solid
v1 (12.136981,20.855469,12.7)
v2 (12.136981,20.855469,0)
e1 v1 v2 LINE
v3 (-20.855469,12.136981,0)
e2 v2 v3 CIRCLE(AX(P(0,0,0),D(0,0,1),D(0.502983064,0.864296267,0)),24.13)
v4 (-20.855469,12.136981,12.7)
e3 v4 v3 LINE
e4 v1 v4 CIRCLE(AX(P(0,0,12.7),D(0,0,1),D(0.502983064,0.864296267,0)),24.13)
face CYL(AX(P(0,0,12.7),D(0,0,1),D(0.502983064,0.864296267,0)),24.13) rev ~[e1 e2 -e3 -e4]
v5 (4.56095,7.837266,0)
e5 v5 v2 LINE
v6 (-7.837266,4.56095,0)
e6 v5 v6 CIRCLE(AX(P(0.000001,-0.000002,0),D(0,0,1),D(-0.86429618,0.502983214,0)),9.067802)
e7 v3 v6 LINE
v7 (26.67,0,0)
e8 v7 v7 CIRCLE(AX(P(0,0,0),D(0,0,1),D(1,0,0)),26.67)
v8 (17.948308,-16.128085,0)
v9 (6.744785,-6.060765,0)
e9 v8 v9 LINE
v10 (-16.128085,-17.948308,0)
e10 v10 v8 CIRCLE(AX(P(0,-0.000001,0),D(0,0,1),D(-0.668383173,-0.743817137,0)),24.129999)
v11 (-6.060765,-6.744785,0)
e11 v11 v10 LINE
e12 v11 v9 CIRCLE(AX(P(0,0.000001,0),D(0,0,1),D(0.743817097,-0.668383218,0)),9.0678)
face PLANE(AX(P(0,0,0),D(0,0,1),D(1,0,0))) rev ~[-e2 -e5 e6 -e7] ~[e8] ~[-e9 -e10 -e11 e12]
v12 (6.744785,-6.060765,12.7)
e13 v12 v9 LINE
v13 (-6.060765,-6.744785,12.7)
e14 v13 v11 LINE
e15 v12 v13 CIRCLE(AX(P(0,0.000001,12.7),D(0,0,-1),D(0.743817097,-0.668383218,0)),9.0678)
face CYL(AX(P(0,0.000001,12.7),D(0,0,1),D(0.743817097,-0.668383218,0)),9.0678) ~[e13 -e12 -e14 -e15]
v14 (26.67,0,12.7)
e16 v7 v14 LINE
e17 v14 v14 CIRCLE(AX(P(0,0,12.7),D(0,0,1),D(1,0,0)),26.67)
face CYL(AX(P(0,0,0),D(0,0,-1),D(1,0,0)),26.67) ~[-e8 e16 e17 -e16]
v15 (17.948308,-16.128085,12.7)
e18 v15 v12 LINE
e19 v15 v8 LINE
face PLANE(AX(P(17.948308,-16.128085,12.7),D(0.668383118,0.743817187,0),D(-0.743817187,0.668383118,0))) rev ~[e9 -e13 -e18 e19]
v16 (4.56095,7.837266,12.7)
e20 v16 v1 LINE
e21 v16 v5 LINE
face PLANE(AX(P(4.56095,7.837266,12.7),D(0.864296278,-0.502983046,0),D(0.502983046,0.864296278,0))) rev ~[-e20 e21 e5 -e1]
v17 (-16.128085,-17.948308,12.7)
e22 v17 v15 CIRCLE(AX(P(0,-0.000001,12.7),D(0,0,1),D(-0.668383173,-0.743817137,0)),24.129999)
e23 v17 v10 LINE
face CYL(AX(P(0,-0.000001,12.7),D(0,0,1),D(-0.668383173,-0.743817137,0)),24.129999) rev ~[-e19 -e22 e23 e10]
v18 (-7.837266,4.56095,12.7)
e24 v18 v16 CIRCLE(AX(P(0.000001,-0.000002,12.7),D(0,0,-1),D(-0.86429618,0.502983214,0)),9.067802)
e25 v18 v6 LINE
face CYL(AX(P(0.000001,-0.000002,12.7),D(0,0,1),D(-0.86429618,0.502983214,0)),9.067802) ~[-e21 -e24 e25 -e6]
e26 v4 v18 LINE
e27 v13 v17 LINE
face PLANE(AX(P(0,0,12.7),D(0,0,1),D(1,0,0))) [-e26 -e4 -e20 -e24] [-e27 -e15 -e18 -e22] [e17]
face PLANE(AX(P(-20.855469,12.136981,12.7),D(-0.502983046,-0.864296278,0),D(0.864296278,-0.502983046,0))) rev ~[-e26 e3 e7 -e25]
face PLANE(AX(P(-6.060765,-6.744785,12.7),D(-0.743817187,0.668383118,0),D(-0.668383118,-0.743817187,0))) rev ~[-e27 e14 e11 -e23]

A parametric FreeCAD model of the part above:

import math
import FreeCAD as App
import Part
import Sketcher

V = App.Vector
Q = App.Units.Quantity

doc = App.newDocument("Part")
body = doc.addObject("PartDesign::Body", "Body")

# Sketch on XY plane
sketch1 = body.newObject("Sketcher::SketchObject", "Sketch")
sketch1.AttachmentSupport = (doc.getObject("XY_Plane"), [""])
sketch1.MapMode = "FlatFace"
sketch1.addGeometry(Part.Circle(V(0, 0, 0), V(0, 0, 1), 27), False)
sketch1.addConstraint(Sketcher.Constraint("Coincident", 0, 3, -1, 1))
sketch1.addConstraint(Sketcher.Constraint("Diameter", 0, Q("2.1 in")))
pad1 = body.newObject("PartDesign::Pad", "Pad")
pad1.Profile = sketch1
pad1.Length = Q("0.5 in")

# Sketch on XY plane
sketch2 = body.newObject("Sketcher::SketchObject", "Sketch001")
sketch2.AttachmentSupport = (doc.getObject("XY_Plane"), [""])
sketch2.MapMode = "FlatFace"
sketch2.AttachmentOffset = App.Placement(V(0, 0, 0.5 * 25.4), App.Rotation())
sketch2.addGeometry(Part.ArcOfCircle(Part.Circle(V(0, 0, 0), V(0, 0, 1), 24), math.radians(-132), math.radians(-42)), False)
sketch2.addGeometry(Part.LineSegment(V(18, -16, 0), V(7, -6, 0)), False)
sketch2.addGeometry(Part.ArcOfCircle(Part.Circle(V(0, 0, 0), V(0, 0, 1), 9), math.radians(-132), math.radians(-42)), False)
sketch2.addGeometry(Part.LineSegment(V(-6, -7, 0), V(-16, -18, 0)), False)
sketch2.addGeometry(Part.LineSegment(V(5, 8, 0), V(12, 21, 0)), False)
sketch2.addGeometry(Part.ArcOfCircle(Part.Circle(V(0, 0, 0), V(0, 0, 1), 24), math.radians(60), math.radians(150)), False)
sketch2.addGeometry(Part.LineSegment(V(-21, 12, 0), V(-8, 5, 0)), False)
sketch2.addGeometry(Part.ArcOfCircle(Part.Circle(V(0, 0, 0), V(0, 0, 1), 9), math.radians(60), math.radians(150)), False)
sketch2.addConstraint(Sketcher.Constraint("Coincident", 0, 2, 1, 1))
sketch2.addConstraint(Sketcher.Constraint("Coincident", 1, 2, 2, 2))
sketch2.addConstraint(Sketcher.Constraint("Coincident", 2, 1, 3, 1))
sketch2.addConstraint(Sketcher.Constraint("Coincident", 3, 2, 0, 1))
sketch2.addConstraint(Sketcher.Constraint("Coincident", 4, 2, 5, 1))
sketch2.addConstraint(Sketcher.Constraint("Coincident", 5, 2, 6, 1))
sketch2.addConstraint(Sketcher.Constraint("Coincident", 6, 2, 7, 2))
sketch2.addConstraint(Sketcher.Constraint("Coincident", 7, 1, 4, 1))
sketch2.addConstraint(Sketcher.Constraint("Coincident", 0, 3, -1, 1))
sketch2.addConstraint(Sketcher.Constraint("Coincident", 2, 3, -1, 1))
sketch2.addConstraint(Sketcher.Constraint("Coincident", 5, 3, -1, 1))
sketch2.addConstraint(Sketcher.Constraint("Coincident", 7, 3, -1, 1))
sketch2.addConstraint(Sketcher.Constraint("Equal", 0, 5))
sketch2.addConstraint(Sketcher.Constraint("Equal", 2, 7))
sketch2.addConstraint(Sketcher.Constraint("Perpendicular", 1, 3))
sketch2.addConstraint(Sketcher.Constraint("Perpendicular", 4, 6))
sketch2.addConstraint(Sketcher.Constraint("Radius", 0, Q("0.9499999 in")))
sketch2.addConstraint(Sketcher.Constraint("Radius", 2, Q("0.357 in")))
sketch2.addConstraint(Sketcher.Constraint("DistanceX", 6, 2, 2, 1, 1.776501))
sketch2.addConstraint(Sketcher.Constraint("DistanceX", -1, 1, 0, 2, 17.948308))
sketch2.addConstraint(Sketcher.Constraint("DistanceY", 3, 2, -1, 1, 17.948308))
sketch2.addConstraint(Sketcher.Constraint("DistanceX", -1, 1, 4, 2, 12.136981))
sketch2.addConstraint(Sketcher.Constraint("DistanceX", 5, 2, -1, 1, 20.855469))
sketch2.addConstraint(Sketcher.Constraint("DistanceY", -1, 1, 6, 2, 4.56095))
pocket1 = body.newObject("PartDesign::Pocket", "Pocket")
pocket1.Profile = sketch2
pocket1.Length = Q("4 in")

doc.recompute()
